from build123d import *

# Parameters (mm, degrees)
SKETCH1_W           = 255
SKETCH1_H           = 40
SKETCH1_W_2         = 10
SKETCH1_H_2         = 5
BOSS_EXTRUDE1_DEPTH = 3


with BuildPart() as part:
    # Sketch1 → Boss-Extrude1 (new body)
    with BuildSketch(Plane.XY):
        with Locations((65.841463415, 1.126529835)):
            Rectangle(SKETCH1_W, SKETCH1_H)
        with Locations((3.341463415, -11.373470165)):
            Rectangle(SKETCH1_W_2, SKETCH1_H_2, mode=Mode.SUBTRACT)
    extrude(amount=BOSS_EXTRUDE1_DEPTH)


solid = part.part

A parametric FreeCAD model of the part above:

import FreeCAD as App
import Part
import Sketcher
Q = App.Units.Quantity

doc = App.newDocument("Part")
body = doc.addObject("PartDesign::Body", "Body")

# Sketch on XY plane
sketch1 = body.newObject("Sketcher::SketchObject", "Sketch")
sketch1.AttachmentSupport = (doc.getObject("XY_Plane"), [""])
sketch1.MapMode = "FlatFace"
sketch1.addGeometry([
    Part.LineSegment(App.Vector(-62, 21, 0), App.Vector(-62, -19, 0)),  # 0
    Part.LineSegment(App.Vector(-62, -19, 0), App.Vector(193, -19, 0)),  # 1
    Part.LineSegment(App.Vector(193, -19, 0), App.Vector(193, 21, 0)),  # 2
    Part.LineSegment(App.Vector(193, 21, 0), App.Vector(-62, 21, 0)),  # 3
    Part.LineSegment(App.Vector(8, -14, 0), App.Vector(-2, -14, 0)),  # 4
    Part.LineSegment(App.Vector(-2, -14, 0), App.Vector(-2, -9, 0)),  # 5
    Part.LineSegment(App.Vector(-2, -9, 0), App.Vector(8, -9, 0)),  # 6
    Part.LineSegment(App.Vector(8, -9, 0), App.Vector(8, -14, 0)),  # 7
], False)
sketch1.addConstraint([
    Sketcher.Constraint("Coincident", 0, 2, 1, 1),
    Sketcher.Constraint("Coincident", 1, 2, 2, 1),
    Sketcher.Constraint("Coincident", 2, 2, 3, 1),
    Sketcher.Constraint("Coincident", 3, 2, 0, 1),
    Sketcher.Constraint("Coincident", 4, 2, 5, 1),
    Sketcher.Constraint("Coincident", 5, 2, 6, 1),
    Sketcher.Constraint("Coincident", 6, 2, 7, 1),
    Sketcher.Constraint("Coincident", 7, 2, 4, 1),
    Sketcher.Constraint("Vertical", 0),
    Sketcher.Constraint("Horizontal", 1),
    Sketcher.Constraint("Vertical", 2),
    Sketcher.Constraint("Horizontal", 3),
    Sketcher.Constraint("Horizontal", 4),
    Sketcher.Constraint("Vertical", 5),
    Sketcher.Constraint("Horizontal", 6),
    Sketcher.Constraint("Vertical", 7),
    Sketcher.Constraint("DistanceX", 1, 1, 1, 2, Q("255 mm")),
    Sketcher.Constraint("DistanceX", 4, 2, 4, 1, Q("10 mm")),
    Sketcher.Constraint("DistanceY", 0, 2, 0, 1, Q("40 mm")),
    Sketcher.Constraint("DistanceY", 5, 1, 5, 2, Q("5 mm")),
    Sketcher.Constraint("DistanceX", 0, 2, 4, 2, Q("60 mm")),
    Sketcher.Constraint("DistanceY", 0, 2, 4, 2, Q("5 mm")),
    Sketcher.Constraint("DistanceY", 0, 2, -1, 1, Q("18.87347 mm")),
    Sketcher.Constraint("DistanceX", 0, 2, -1, 1, Q("61.658537 mm")),
])
pad1 = body.newObject("PartDesign::Pad", "Pad")
pad1.Profile = sketch1
pad1.Length = 3

doc.recompute()
